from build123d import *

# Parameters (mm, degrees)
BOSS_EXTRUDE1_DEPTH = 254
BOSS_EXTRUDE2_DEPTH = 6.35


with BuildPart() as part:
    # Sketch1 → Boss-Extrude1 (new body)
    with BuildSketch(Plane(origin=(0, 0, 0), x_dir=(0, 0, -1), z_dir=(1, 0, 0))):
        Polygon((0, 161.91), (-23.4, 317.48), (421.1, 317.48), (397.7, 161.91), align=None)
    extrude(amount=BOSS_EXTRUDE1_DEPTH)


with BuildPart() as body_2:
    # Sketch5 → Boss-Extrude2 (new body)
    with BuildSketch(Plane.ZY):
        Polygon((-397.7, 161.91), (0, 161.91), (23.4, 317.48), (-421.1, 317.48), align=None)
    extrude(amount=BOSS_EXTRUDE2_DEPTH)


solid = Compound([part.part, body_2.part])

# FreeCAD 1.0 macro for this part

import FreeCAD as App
import Part
import Sketcher

V = App.Vector
Q = App.Units.Quantity

doc = App.newDocument("Part")
body = doc.addObject("PartDesign::Body", "Body")

# Sketch on YZ plane
sketch1 = doc.addObject("Sketcher::SketchObject", "Sketch")
body.addObject(sketch1)
sketch1.AttachmentSupport = (doc.YZ_Plane, [""])
sketch1.MapMode = "FlatFace"
sketch1.addGeometry(Part.LineSegment(V(317, 23, 0), V(162, 0, 0)), False)
sketch1.addGeometry(Part.LineSegment(V(162, 0, 0), V(162, -398, 0)), False)
sketch1.addGeometry(Part.LineSegment(V(162, -398, 0), V(317, -421, 0)), False)
sketch1.addGeometry(Part.LineSegment(V(317, -421, 0), V(317, 23, 0)), False)
sketch1.addConstraint(Sketcher.Constraint("Coincident", 0, 2, 1, 1))
sketch1.addConstraint(Sketcher.Constraint("Coincident", 1, 2, 2, 1))
sketch1.addConstraint(Sketcher.Constraint("Coincident", 2, 2, 3, 1))
sketch1.addConstraint(Sketcher.Constraint("Coincident", 3, 2, 0, 1))
sketch1.addConstraint(Sketcher.Constraint("Vertical", 1))
sketch1.addConstraint(Sketcher.Constraint("Vertical", 3))
sketch1.addConstraint(Sketcher.Constraint("PointOnObject", 0, 2, -1))
sketch1.addConstraint(Sketcher.Constraint("Equal", 0, 2))
sketch1.addConstraint(Sketcher.Constraint("DistanceY", 3, 1, 3, 2, Q("17.5 in")))
sketch1.addConstraint(Sketcher.Constraint("DistanceY", 1, 2, 1, 1, 397.7))
sketch1.addConstraint(Sketcher.Constraint("DistanceX", -1, 1, 0, 2, 161.91))
sketch1.addConstraint(Sketcher.Constraint("DistanceX", -1, 1, 2, 2, 317.48))
pad1 = doc.addObject("PartDesign::Pad", "Pad")
body.addObject(pad1)
pad1.Profile = sketch1
pad1.Length = Q("10 in")
body2 = doc.addObject("PartDesign::Body", "Body001")

# Sketch on YZ plane
sketch2 = doc.addObject("Sketcher::SketchObject", "Sketch001")
body2.addObject(sketch2)
sketch2.AttachmentSupport = (doc.getObject("YZ_Plane001"), [""])
sketch2.MapMode = "FlatFace"
sketch2.addGeometry(Part.LineSegment(V(162, -398, 0), V(162, 0, 0)), False)
sketch2.addGeometry(Part.LineSegment(V(162, 0, 0), V(317, 23, 0)), False)
sketch2.addGeometry(Part.LineSegment(V(317, 23, 0), V(317, -421, 0)), False)
sketch2.addGeometry(Part.LineSegment(V(317, -421, 0), V(162, -398, 0)), False)
sketch2.addConstraint(Sketcher.Constraint("Coincident", 0, 2, 1, 1))
sketch2.addConstraint(Sketcher.Constraint("Coincident", 1, 2, 2, 1))
sketch2.addConstraint(Sketcher.Constraint("Coincident", 2, 2, 3, 1))
sketch2.addConstraint(Sketcher.Constraint("Coincident", 3, 2, 0, 1))
sketch2.addConstraint(Sketcher.Constraint("Vertical", 0))
sketch2.addConstraint(Sketcher.Constraint("Vertical", 2))
sketch2.addConstraint(Sketcher.Constraint("PointOnObject", 0, 2, -1))
sketch2.addConstraint(Sketcher.Constraint("Equal", 1, 3))
sketch2.addConstraint(Sketcher.Constraint("DistanceY", 2, 2, 2, 1, Q("17.5 in")))
sketch2.addConstraint(Sketcher.Constraint("DistanceY", 0, 1, 0, 2, 397.7))
sketch2.addConstraint(Sketcher.Constraint("DistanceX", -1, 1, 0, 2, 161.91))
sketch2.addConstraint(Sketcher.Constraint("DistanceX", -1, 1, 1, 2, 317.48))
pad2 = doc.addObject("PartDesign::Pad", "Pad001")
body2.addObject(pad2)
pad2.Profile = sketch2
pad2.Length = Q("0.25 in")
pad2.Reversed = True

doc.recompute()
